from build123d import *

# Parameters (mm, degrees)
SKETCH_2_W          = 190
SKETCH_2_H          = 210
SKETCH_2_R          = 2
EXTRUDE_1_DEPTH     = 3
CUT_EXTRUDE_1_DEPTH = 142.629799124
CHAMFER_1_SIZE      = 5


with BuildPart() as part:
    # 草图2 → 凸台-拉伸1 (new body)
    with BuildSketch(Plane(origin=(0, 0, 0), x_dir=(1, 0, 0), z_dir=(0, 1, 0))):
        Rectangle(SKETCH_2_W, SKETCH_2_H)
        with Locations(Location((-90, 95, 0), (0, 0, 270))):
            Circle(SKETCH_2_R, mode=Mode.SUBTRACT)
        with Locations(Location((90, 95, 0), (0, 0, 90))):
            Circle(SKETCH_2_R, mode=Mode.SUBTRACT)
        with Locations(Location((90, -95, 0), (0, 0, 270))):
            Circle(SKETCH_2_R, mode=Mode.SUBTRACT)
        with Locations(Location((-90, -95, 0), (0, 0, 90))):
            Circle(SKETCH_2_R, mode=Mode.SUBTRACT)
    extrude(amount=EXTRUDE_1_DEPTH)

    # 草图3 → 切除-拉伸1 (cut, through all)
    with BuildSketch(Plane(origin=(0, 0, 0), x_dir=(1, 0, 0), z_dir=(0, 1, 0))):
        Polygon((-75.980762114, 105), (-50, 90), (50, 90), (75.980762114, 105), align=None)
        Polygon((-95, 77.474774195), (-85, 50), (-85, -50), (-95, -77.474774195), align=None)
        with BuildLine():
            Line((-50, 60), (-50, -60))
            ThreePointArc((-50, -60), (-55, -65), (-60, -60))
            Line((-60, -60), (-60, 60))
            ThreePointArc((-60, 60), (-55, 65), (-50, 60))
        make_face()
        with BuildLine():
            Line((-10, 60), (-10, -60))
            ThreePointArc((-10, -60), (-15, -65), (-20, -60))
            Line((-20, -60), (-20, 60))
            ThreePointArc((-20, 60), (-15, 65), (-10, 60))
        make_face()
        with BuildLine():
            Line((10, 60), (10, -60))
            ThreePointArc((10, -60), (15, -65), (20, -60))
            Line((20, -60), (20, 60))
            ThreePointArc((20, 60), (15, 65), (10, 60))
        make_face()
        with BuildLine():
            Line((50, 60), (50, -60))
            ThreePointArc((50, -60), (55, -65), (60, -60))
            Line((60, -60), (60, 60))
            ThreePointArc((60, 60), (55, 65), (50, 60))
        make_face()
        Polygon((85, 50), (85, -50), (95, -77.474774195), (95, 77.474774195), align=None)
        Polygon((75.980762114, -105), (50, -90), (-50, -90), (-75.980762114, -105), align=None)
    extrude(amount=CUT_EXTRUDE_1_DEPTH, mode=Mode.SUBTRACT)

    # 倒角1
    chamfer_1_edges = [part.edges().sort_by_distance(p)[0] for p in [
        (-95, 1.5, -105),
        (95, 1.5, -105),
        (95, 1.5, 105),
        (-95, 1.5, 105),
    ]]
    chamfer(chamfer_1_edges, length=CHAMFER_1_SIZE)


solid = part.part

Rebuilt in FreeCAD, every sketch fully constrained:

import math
import FreeCAD as App
import Part
import Sketcher
Q = App.Units.Quantity


def edges_at(feature, points):
    """Names of the edges that pass closest to the given points."""
    edges = feature.Shape.Edges
    near = lambda p: min(range(len(edges)), key=lambda i: edges[i].distToShape(Part.Vertex(*p))[0])
    return sorted({f"Edge{near(p) + 1}" for p in points})


def add_polygon(sketch, points):
    """Adds a closed chain of lines whose ends are joined by coincident constraints."""
    first, n = sketch.GeometryCount, len(points)
    for a, b in zip(points, points[1:] + points[:1]):
        sketch.addGeometry(Part.LineSegment(App.Vector(*a, 0), App.Vector(*b, 0)), False)
    for i in range(n):
        sketch.addConstraint(Sketcher.Constraint("Coincident", first + i, 2, first + (i + 1) % n, 1))

doc = App.newDocument("Part")
body = doc.addObject("PartDesign::Body", "Body")

sketch1 = body.newObject("Sketcher::SketchObject", "Sketch")
sketch1.AttachmentSupport = (doc.getObject("XZ_Plane"), [""])
sketch1.MapMode = "FlatFace"
add_polygon(sketch1, [(-95, -105), (-95, 105), (95, 105), (95, -105)])
sketch1.addGeometry(Part.Circle(App.Vector(-90, 95, 0), App.Vector(0, 0, 1), 2), False)
sketch1.addGeometry(Part.Circle(App.Vector(90, 95, 0), App.Vector(0, 0, 1), 2), False)
sketch1.addGeometry(Part.Circle(App.Vector(-90, -95, 0), App.Vector(0, 0, 1), 2), False)
sketch1.addGeometry(Part.Circle(App.Vector(90, -95, 0), App.Vector(0, 0, 1), 2), False)
sketch1.addConstraint([
    Sketcher.Constraint("Vertical", 0),
    Sketcher.Constraint("Horizontal", 1),
    Sketcher.Constraint("Vertical", 2),
    Sketcher.Constraint("Horizontal", 3),
    Sketcher.Constraint("Equal", 4, 5),
    Sketcher.Constraint("Equal", 5, 6),
    Sketcher.Constraint("Equal", 6, 7),
    Sketcher.Constraint("Symmetric", 5, 3, 6, 3, -1, 1),
    Sketcher.Constraint("Symmetric", 4, 3, 7, 3, -1, 1),
    Sketcher.Constraint("Symmetric", 0, 2, 2, 2, -1, 1),
    Sketcher.Constraint("Symmetric", 4, 3, 5, 3, -2),
    Sketcher.Constraint("Diameter", 4, 4.0),
    Sketcher.Constraint("DistanceX", 1, 1, 1, 2, 190.0),
    Sketcher.Constraint("DistanceY", 0, 1, 0, 2, 210.0),
    Sketcher.Constraint("DistanceX", 4, 3, -1, 1, 90.0),
    Sketcher.Constraint("DistanceY", -1, 1, 4, 3, 95.0),
])
pad1 = body.newObject("PartDesign::Pad", "Pad")
pad1.Profile = sketch1
pad1.Length = 3
pad1.Reversed = True

sketch2 = body.newObject("Sketcher::SketchObject", "Sketch001")
sketch2.AttachmentSupport = (doc.getObject("XZ_Plane"), [""])
sketch2.MapMode = "FlatFace"
add_polygon(sketch2, [(-76, -105), (-50, -90), (50, -90), (76, -105)])
add_polygon(sketch2, [(-85, -50), (-95, -77), (-95, 77), (-85, 50)])
sketch2.addGeometry(Part.LineSegment(App.Vector(-50, 60, 0), App.Vector(-50, -60, 0)), False)
sketch2.addGeometry(Part.ArcOfCircle(Part.Circle(App.Vector(-55, -60, 0), App.Vector(0, 0, 1), 5), math.radians(180), math.radians(360)), False)
sketch2.addGeometry(Part.LineSegment(App.Vector(-60, -60, 0), App.Vector(-60, 60, 0)), False)
sketch2.addGeometry(Part.ArcOfCircle(Part.Circle(App.Vector(-55, 60, 0), App.Vector(0, 0, 1), 5), math.radians(0), math.radians(180)), False)
sketch2.addGeometry(Part.LineSegment(App.Vector(-10, 60, 0), App.Vector(-10, -60, 0)), False)
sketch2.addGeometry(Part.ArcOfCircle(Part.Circle(App.Vector(-15, -60, 0), App.Vector(0, 0, 1), 5), math.radians(180), math.radians(360)), False)
sketch2.addGeometry(Part.LineSegment(App.Vector(-20, -60, 0), App.Vector(-20, 60, 0)), False)
sketch2.addGeometry(Part.ArcOfCircle(Part.Circle(App.Vector(-15, 60, 0), App.Vector(0, 0, 1), 5), math.radians(0), math.radians(180)), False)
sketch2.addGeometry(Part.LineSegment(App.Vector(10, -60, 0), App.Vector(10, 60, 0)), False)
sketch2.addGeometry(Part.ArcOfCircle(Part.Circle(App.Vector(15, 60, 0), App.Vector(0, 0, 1), 5), math.radians(0), math.radians(180)), False)
sketch2.addGeometry(Part.LineSegment(App.Vector(20, 60, 0), App.Vector(20, -60, 0)), False)
sketch2.addGeometry(Part.ArcOfCircle(Part.Circle(App.Vector(15, -60, 0), App.Vector(0, 0, 1), 5), math.radians(180), math.radians(360)), False)
sketch2.addGeometry(Part.LineSegment(App.Vector(50, -60, 0), App.Vector(50, 60, 0)), False)
sketch2.addGeometry(Part.ArcOfCircle(Part.Circle(App.Vector(55, 60, 0), App.Vector(0, 0, 1), 5), math.radians(0), math.radians(180)), False)
sketch2.addGeometry(Part.LineSegment(App.Vector(60, 60, 0), App.Vector(60, -60, 0)), False)
sketch2.addGeometry(Part.ArcOfCircle(Part.Circle(App.Vector(55, -60, 0), App.Vector(0, 0, 1), 5), math.radians(180), math.radians(360)), False)
add_polygon(sketch2, [(85, -50), (85, 50), (95, 77), (95, -77)])
add_polygon(sketch2, [(76, 105), (50, 90), (-50, 90), (-76, 105)])
sketch2.addConstraint([
    Sketcher.Constraint("Tangent", 8, 2, 9, 2),
    Sketcher.Constraint("Tangent", 9, 1, 10, 1),
    Sketcher.Constraint("Tangent", 10, 2, 11, 2),
    Sketcher.Constraint("Tangent", 11, 1, 8, 1),
    Sketcher.Constraint("Tangent", 12, 2, 13, 2),
    Sketcher.Constraint("Tangent", 13, 1, 14, 1),
    Sketcher.Constraint("Tangent", 14, 2, 15, 2),
    Sketcher.Constraint("Tangent", 15, 1, 12, 1),
    Sketcher.Constraint("Tangent", 16, 2, 17, 2),
    Sketcher.Constraint("Tangent", 17, 1, 18, 1),
    Sketcher.Constraint("Tangent", 18, 2, 19, 2),
    Sketcher.Constraint("Tangent", 19, 1, 16, 1),
    Sketcher.Constraint("Tangent", 20, 2, 21, 2),
    Sketcher.Constraint("Tangent", 21, 1, 22, 1),
    Sketcher.Constraint("Tangent", 22, 2, 23, 2),
    Sketcher.Constraint("Tangent", 23, 1, 20, 1),
    Sketcher.Constraint("Horizontal", 1),
    Sketcher.Constraint("Horizontal", 3),
    Sketcher.Constraint("Vertical", 5),
    Sketcher.Constraint("Vertical", 7),
    Sketcher.Constraint("Vertical", 8),
    Sketcher.Constraint("Vertical", 10),
    Sketcher.Constraint("Vertical", 12),
    Sketcher.Constraint("Vertical", 14),
    Sketcher.Constraint("Vertical", 16),
    Sketcher.Constraint("Vertical", 18),
    Sketcher.Constraint("Vertical", 20),
    Sketcher.Constraint("Vertical", 22),
    Sketcher.Constraint("Vertical", 24),
    Sketcher.Constraint("Vertical", 26),
    Sketcher.Constraint("Horizontal", 29),
    Sketcher.Constraint("Horizontal", 31),
    Sketcher.Constraint("Equal", 11, 13),
    Sketcher.Constraint("Equal", 15, 17),
    Sketcher.Constraint("Equal", 19, 21),
    Sketcher.Constraint("Symmetric", 13, 3, 17, 3, -1, 1),
    Sketcher.Constraint("Symmetric", 9, 3, 21, 3, -1, 1),
    Sketcher.Constraint("Symmetric", 7, 2, 24, 2, -1, 1),
    Sketcher.Constraint("Symmetric", 4, 2, 25, 2, -1, 1),
    Sketcher.Constraint("Symmetric", 0, 2, 28, 2, -1, 1),
    Sketcher.Constraint("Symmetric", 2, 2, 30, 2, -1, 1),
    Sketcher.Constraint("Parallel", 6, 27),
    Sketcher.Constraint("Parallel", 0, 28),
    Sketcher.Constraint("Parallel", 2, 30),
    Sketcher.Constraint("Horizontal", 9, 3, 13, 3),
    Sketcher.Constraint("Horizontal", 11, 3, 15, 3),
    Sketcher.Constraint("Horizontal", 15, 3, 17, 3),
    Sketcher.Constraint("Horizontal", 13, 3, 19, 3),
    Sketcher.Constraint("Horizontal", 19, 3, 23, 3),
    Sketcher.Constraint("Horizontal", 6, 2, 24, 2),
    Sketcher.Constraint("Horizontal", 5, 2, 25, 2),
    Sketcher.Constraint("Horizontal", 4, 2, 26, 2),
    Sketcher.Constraint("Vertical", 0, 2, 8, 2),
    Sketcher.Constraint("Vertical", 1, 2, 20, 2),
    Sketcher.Constraint("Vertical", 3, 2, 30, 2),
    Sketcher.Constraint("Equal", 29, 7),
    Sketcher.Constraint("Radius", 9, 5.0),
    Sketcher.Constraint("DistanceX", 1, 1, 1, 2, 100.0),
    Sketcher.Constraint("DistanceY", 8, 2, 8, 1, 120.0),
    Sketcher.Constraint("Angle", 0, Q("30 deg")),
    Sketcher.Constraint("Angle", 4, Q("-110 deg")),
    Sketcher.Constraint("Distance", 0, 30.0),
    Sketcher.Constraint("DistanceX", 13, 3, -1, 1, 15.0),
    Sketcher.Constraint("DistanceY", 0, 2, -1, 1, 90.0),
    Sketcher.Constraint("DistanceX", 4, 2, -1, 1, 95.0),
    Sketcher.Constraint("DistanceX", 6, 2, -1, 1, 85.0),
])
pocket1 = body.newObject("PartDesign::Pocket", "Pocket")
pocket1.Profile = sketch2
pocket1.Type = "ThroughAll"
doc.recompute()

chamfer = body.newObject("PartDesign::Chamfer", "Chamfer")
chamfer.Base = (pocket1, edges_at(pocket1, [
    (-95, 1.5, -105),
    (95, 1.5, -105),
    (95, 1.5, 105),
    (-95, 1.5, 105),
]))
chamfer.Size = 5

doc.recompute()
